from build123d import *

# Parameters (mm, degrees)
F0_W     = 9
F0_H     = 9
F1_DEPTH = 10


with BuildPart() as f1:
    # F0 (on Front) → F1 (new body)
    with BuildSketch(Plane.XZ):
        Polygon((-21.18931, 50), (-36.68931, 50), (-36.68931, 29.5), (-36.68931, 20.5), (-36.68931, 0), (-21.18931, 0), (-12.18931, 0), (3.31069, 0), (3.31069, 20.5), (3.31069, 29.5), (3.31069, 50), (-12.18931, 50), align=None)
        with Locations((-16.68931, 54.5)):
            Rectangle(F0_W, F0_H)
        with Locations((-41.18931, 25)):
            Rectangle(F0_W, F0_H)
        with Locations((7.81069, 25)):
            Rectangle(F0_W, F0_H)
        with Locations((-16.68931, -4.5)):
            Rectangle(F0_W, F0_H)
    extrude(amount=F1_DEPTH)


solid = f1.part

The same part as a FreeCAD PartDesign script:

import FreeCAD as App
import Part
import Sketcher
Q = App.Units.Quantity


def add_polygon(sketch, points):
    """Adds a closed chain of lines whose ends are joined by coincident constraints."""
    first, n = sketch.GeometryCount, len(points)
    for a, b in zip(points, points[1:] + points[:1]):
        sketch.addGeometry(Part.LineSegment(App.Vector(*a, 0), App.Vector(*b, 0)), False)
    for i in range(n):
        sketch.addConstraint(Sketcher.Constraint("Coincident", first + i, 2, first + (i + 1) % n, 1))

doc = App.newDocument("Part")
params = doc.addObject("Spreadsheet::Sheet", "Params")
for row, (alias, value) in enumerate([
    ("sketch1_width", "9 mm"),
    ("sketch1_width2", "15.5 mm"),
    ("sketch1_height", "20.5 mm"),
    ("pad1_length", "10 mm"),
], start=1):
    params.set(f"A{row}", alias)
    params.set(f"B{row}", "=" + value)
    params.setAlias(f"B{row}", alias)

body = doc.addObject("PartDesign::Body", "Body")

sketch1 = body.newObject("Sketcher::SketchObject", "Sketch")
sketch1.AttachmentSupport = (doc.getObject("XZ_Plane"), [""])
sketch1.MapMode = "FlatFace"
add_polygon(sketch1, [(-37, 50), (-37, 30), (-46, 30), (-46, 20), (-37, 20), (-37, 0), (-21, 0), (-21, -9), (-12, -9), (-12, 0), (3, 0), (3, 20), (12, 20), (12, 30), (3, 30), (3, 50), (-12, 50), (-12, 59), (-21, 59), (-21, 50)])
sketch1.addConstraint(Sketcher.Constraint("Vertical", 0))
sketch1.addConstraint(Sketcher.Constraint("Horizontal", 1))
sketch1.addConstraint(Sketcher.Constraint("Vertical", 2))
sketch1.addConstraint(Sketcher.Constraint("Horizontal", 3))
sketch1.addConstraint(Sketcher.Constraint("Vertical", 4))
sketch1.addConstraint(Sketcher.Constraint("Horizontal", 5))
sketch1.addConstraint(Sketcher.Constraint("Vertical", 6))
sketch1.addConstraint(Sketcher.Constraint("Horizontal", 7))
sketch1.addConstraint(Sketcher.Constraint("Vertical", 8))
sketch1.addConstraint(Sketcher.Constraint("Horizontal", 9))
sketch1.addConstraint(Sketcher.Constraint("Vertical", 10))
sketch1.addConstraint(Sketcher.Constraint("Horizontal", 11))
sketch1.addConstraint(Sketcher.Constraint("Vertical", 12))
sketch1.addConstraint(Sketcher.Constraint("Horizontal", 13))
sketch1.addConstraint(Sketcher.Constraint("Vertical", 14))
sketch1.addConstraint(Sketcher.Constraint("Horizontal", 15))
sketch1.addConstraint(Sketcher.Constraint("Vertical", 16))
sketch1.addConstraint(Sketcher.Constraint("Horizontal", 17))
sketch1.addConstraint(Sketcher.Constraint("Vertical", 18))
sketch1.addConstraint(Sketcher.Constraint("Horizontal", 19))
sketch1.addConstraint(Sketcher.Constraint("PointOnObject", 4, 2, -1))
sketch1.addConstraint(Sketcher.Constraint("PointOnObject", 8, 2, -1))
sketch1.addConstraint(Sketcher.Constraint("Horizontal", 3, 2, 10, 2))
sketch1.addConstraint(Sketcher.Constraint("Horizontal", 1, 2, 12, 2))
sketch1.addConstraint(Sketcher.Constraint("Horizontal", 15, 2, 18, 2))
sketch1.addConstraint(Sketcher.Constraint("Vertical", 0, 2, 3, 2))
sketch1.addConstraint(Sketcher.Constraint("Vertical", 10, 2, 13, 2))
sketch1.addConstraint(Sketcher.Constraint("Vertical", 8, 2, 15, 2))
sketch1.addConstraint(Sketcher.Constraint("Vertical", 6, 2, 17, 2))
sketch1.addConstraint(Sketcher.Constraint("Equal", 3, 7))
sketch1.addConstraint(Sketcher.Constraint("Equal", 5, 9))
sketch1.addConstraint(Sketcher.Constraint("Equal", 7, 11))
sketch1.addConstraint(Sketcher.Constraint("Equal", 17, 2))
sketch1.addConstraint(Sketcher.Constraint("Equal", 0, 4))
sketch1.addConstraint(Sketcher.Constraint("Equal", 2, 6))
sketch1.addConstraint(Sketcher.Constraint("Equal", 12, 16))
sketch1.addConstraint(Sketcher.Constraint("DistanceX", 1, 2, 1, 1, Q("9 mm")))
sketch1.addConstraint(Sketcher.Constraint("DistanceX", 5, 1, 5, 2, Q("15.5 mm")))
sketch1.addConstraint(Sketcher.Constraint("DistanceY", 0, 2, 0, 1, Q("20.5 mm")))
sketch1.addConstraint(Sketcher.Constraint("DistanceX", 0, 2, -1, 1, Q("36.68931 mm")))
sketch1.setExpression("Constraints[56]", "Params.sketch1_width")
sketch1.setExpression("Constraints[57]", "Params.sketch1_width2")
sketch1.setExpression("Constraints[58]", "Params.sketch1_height")
pad1 = body.newObject("PartDesign::Pad", "Pad")
pad1.Profile = sketch1
pad1.setExpression("Length", "Params.pad1_length")

doc.recompute()
